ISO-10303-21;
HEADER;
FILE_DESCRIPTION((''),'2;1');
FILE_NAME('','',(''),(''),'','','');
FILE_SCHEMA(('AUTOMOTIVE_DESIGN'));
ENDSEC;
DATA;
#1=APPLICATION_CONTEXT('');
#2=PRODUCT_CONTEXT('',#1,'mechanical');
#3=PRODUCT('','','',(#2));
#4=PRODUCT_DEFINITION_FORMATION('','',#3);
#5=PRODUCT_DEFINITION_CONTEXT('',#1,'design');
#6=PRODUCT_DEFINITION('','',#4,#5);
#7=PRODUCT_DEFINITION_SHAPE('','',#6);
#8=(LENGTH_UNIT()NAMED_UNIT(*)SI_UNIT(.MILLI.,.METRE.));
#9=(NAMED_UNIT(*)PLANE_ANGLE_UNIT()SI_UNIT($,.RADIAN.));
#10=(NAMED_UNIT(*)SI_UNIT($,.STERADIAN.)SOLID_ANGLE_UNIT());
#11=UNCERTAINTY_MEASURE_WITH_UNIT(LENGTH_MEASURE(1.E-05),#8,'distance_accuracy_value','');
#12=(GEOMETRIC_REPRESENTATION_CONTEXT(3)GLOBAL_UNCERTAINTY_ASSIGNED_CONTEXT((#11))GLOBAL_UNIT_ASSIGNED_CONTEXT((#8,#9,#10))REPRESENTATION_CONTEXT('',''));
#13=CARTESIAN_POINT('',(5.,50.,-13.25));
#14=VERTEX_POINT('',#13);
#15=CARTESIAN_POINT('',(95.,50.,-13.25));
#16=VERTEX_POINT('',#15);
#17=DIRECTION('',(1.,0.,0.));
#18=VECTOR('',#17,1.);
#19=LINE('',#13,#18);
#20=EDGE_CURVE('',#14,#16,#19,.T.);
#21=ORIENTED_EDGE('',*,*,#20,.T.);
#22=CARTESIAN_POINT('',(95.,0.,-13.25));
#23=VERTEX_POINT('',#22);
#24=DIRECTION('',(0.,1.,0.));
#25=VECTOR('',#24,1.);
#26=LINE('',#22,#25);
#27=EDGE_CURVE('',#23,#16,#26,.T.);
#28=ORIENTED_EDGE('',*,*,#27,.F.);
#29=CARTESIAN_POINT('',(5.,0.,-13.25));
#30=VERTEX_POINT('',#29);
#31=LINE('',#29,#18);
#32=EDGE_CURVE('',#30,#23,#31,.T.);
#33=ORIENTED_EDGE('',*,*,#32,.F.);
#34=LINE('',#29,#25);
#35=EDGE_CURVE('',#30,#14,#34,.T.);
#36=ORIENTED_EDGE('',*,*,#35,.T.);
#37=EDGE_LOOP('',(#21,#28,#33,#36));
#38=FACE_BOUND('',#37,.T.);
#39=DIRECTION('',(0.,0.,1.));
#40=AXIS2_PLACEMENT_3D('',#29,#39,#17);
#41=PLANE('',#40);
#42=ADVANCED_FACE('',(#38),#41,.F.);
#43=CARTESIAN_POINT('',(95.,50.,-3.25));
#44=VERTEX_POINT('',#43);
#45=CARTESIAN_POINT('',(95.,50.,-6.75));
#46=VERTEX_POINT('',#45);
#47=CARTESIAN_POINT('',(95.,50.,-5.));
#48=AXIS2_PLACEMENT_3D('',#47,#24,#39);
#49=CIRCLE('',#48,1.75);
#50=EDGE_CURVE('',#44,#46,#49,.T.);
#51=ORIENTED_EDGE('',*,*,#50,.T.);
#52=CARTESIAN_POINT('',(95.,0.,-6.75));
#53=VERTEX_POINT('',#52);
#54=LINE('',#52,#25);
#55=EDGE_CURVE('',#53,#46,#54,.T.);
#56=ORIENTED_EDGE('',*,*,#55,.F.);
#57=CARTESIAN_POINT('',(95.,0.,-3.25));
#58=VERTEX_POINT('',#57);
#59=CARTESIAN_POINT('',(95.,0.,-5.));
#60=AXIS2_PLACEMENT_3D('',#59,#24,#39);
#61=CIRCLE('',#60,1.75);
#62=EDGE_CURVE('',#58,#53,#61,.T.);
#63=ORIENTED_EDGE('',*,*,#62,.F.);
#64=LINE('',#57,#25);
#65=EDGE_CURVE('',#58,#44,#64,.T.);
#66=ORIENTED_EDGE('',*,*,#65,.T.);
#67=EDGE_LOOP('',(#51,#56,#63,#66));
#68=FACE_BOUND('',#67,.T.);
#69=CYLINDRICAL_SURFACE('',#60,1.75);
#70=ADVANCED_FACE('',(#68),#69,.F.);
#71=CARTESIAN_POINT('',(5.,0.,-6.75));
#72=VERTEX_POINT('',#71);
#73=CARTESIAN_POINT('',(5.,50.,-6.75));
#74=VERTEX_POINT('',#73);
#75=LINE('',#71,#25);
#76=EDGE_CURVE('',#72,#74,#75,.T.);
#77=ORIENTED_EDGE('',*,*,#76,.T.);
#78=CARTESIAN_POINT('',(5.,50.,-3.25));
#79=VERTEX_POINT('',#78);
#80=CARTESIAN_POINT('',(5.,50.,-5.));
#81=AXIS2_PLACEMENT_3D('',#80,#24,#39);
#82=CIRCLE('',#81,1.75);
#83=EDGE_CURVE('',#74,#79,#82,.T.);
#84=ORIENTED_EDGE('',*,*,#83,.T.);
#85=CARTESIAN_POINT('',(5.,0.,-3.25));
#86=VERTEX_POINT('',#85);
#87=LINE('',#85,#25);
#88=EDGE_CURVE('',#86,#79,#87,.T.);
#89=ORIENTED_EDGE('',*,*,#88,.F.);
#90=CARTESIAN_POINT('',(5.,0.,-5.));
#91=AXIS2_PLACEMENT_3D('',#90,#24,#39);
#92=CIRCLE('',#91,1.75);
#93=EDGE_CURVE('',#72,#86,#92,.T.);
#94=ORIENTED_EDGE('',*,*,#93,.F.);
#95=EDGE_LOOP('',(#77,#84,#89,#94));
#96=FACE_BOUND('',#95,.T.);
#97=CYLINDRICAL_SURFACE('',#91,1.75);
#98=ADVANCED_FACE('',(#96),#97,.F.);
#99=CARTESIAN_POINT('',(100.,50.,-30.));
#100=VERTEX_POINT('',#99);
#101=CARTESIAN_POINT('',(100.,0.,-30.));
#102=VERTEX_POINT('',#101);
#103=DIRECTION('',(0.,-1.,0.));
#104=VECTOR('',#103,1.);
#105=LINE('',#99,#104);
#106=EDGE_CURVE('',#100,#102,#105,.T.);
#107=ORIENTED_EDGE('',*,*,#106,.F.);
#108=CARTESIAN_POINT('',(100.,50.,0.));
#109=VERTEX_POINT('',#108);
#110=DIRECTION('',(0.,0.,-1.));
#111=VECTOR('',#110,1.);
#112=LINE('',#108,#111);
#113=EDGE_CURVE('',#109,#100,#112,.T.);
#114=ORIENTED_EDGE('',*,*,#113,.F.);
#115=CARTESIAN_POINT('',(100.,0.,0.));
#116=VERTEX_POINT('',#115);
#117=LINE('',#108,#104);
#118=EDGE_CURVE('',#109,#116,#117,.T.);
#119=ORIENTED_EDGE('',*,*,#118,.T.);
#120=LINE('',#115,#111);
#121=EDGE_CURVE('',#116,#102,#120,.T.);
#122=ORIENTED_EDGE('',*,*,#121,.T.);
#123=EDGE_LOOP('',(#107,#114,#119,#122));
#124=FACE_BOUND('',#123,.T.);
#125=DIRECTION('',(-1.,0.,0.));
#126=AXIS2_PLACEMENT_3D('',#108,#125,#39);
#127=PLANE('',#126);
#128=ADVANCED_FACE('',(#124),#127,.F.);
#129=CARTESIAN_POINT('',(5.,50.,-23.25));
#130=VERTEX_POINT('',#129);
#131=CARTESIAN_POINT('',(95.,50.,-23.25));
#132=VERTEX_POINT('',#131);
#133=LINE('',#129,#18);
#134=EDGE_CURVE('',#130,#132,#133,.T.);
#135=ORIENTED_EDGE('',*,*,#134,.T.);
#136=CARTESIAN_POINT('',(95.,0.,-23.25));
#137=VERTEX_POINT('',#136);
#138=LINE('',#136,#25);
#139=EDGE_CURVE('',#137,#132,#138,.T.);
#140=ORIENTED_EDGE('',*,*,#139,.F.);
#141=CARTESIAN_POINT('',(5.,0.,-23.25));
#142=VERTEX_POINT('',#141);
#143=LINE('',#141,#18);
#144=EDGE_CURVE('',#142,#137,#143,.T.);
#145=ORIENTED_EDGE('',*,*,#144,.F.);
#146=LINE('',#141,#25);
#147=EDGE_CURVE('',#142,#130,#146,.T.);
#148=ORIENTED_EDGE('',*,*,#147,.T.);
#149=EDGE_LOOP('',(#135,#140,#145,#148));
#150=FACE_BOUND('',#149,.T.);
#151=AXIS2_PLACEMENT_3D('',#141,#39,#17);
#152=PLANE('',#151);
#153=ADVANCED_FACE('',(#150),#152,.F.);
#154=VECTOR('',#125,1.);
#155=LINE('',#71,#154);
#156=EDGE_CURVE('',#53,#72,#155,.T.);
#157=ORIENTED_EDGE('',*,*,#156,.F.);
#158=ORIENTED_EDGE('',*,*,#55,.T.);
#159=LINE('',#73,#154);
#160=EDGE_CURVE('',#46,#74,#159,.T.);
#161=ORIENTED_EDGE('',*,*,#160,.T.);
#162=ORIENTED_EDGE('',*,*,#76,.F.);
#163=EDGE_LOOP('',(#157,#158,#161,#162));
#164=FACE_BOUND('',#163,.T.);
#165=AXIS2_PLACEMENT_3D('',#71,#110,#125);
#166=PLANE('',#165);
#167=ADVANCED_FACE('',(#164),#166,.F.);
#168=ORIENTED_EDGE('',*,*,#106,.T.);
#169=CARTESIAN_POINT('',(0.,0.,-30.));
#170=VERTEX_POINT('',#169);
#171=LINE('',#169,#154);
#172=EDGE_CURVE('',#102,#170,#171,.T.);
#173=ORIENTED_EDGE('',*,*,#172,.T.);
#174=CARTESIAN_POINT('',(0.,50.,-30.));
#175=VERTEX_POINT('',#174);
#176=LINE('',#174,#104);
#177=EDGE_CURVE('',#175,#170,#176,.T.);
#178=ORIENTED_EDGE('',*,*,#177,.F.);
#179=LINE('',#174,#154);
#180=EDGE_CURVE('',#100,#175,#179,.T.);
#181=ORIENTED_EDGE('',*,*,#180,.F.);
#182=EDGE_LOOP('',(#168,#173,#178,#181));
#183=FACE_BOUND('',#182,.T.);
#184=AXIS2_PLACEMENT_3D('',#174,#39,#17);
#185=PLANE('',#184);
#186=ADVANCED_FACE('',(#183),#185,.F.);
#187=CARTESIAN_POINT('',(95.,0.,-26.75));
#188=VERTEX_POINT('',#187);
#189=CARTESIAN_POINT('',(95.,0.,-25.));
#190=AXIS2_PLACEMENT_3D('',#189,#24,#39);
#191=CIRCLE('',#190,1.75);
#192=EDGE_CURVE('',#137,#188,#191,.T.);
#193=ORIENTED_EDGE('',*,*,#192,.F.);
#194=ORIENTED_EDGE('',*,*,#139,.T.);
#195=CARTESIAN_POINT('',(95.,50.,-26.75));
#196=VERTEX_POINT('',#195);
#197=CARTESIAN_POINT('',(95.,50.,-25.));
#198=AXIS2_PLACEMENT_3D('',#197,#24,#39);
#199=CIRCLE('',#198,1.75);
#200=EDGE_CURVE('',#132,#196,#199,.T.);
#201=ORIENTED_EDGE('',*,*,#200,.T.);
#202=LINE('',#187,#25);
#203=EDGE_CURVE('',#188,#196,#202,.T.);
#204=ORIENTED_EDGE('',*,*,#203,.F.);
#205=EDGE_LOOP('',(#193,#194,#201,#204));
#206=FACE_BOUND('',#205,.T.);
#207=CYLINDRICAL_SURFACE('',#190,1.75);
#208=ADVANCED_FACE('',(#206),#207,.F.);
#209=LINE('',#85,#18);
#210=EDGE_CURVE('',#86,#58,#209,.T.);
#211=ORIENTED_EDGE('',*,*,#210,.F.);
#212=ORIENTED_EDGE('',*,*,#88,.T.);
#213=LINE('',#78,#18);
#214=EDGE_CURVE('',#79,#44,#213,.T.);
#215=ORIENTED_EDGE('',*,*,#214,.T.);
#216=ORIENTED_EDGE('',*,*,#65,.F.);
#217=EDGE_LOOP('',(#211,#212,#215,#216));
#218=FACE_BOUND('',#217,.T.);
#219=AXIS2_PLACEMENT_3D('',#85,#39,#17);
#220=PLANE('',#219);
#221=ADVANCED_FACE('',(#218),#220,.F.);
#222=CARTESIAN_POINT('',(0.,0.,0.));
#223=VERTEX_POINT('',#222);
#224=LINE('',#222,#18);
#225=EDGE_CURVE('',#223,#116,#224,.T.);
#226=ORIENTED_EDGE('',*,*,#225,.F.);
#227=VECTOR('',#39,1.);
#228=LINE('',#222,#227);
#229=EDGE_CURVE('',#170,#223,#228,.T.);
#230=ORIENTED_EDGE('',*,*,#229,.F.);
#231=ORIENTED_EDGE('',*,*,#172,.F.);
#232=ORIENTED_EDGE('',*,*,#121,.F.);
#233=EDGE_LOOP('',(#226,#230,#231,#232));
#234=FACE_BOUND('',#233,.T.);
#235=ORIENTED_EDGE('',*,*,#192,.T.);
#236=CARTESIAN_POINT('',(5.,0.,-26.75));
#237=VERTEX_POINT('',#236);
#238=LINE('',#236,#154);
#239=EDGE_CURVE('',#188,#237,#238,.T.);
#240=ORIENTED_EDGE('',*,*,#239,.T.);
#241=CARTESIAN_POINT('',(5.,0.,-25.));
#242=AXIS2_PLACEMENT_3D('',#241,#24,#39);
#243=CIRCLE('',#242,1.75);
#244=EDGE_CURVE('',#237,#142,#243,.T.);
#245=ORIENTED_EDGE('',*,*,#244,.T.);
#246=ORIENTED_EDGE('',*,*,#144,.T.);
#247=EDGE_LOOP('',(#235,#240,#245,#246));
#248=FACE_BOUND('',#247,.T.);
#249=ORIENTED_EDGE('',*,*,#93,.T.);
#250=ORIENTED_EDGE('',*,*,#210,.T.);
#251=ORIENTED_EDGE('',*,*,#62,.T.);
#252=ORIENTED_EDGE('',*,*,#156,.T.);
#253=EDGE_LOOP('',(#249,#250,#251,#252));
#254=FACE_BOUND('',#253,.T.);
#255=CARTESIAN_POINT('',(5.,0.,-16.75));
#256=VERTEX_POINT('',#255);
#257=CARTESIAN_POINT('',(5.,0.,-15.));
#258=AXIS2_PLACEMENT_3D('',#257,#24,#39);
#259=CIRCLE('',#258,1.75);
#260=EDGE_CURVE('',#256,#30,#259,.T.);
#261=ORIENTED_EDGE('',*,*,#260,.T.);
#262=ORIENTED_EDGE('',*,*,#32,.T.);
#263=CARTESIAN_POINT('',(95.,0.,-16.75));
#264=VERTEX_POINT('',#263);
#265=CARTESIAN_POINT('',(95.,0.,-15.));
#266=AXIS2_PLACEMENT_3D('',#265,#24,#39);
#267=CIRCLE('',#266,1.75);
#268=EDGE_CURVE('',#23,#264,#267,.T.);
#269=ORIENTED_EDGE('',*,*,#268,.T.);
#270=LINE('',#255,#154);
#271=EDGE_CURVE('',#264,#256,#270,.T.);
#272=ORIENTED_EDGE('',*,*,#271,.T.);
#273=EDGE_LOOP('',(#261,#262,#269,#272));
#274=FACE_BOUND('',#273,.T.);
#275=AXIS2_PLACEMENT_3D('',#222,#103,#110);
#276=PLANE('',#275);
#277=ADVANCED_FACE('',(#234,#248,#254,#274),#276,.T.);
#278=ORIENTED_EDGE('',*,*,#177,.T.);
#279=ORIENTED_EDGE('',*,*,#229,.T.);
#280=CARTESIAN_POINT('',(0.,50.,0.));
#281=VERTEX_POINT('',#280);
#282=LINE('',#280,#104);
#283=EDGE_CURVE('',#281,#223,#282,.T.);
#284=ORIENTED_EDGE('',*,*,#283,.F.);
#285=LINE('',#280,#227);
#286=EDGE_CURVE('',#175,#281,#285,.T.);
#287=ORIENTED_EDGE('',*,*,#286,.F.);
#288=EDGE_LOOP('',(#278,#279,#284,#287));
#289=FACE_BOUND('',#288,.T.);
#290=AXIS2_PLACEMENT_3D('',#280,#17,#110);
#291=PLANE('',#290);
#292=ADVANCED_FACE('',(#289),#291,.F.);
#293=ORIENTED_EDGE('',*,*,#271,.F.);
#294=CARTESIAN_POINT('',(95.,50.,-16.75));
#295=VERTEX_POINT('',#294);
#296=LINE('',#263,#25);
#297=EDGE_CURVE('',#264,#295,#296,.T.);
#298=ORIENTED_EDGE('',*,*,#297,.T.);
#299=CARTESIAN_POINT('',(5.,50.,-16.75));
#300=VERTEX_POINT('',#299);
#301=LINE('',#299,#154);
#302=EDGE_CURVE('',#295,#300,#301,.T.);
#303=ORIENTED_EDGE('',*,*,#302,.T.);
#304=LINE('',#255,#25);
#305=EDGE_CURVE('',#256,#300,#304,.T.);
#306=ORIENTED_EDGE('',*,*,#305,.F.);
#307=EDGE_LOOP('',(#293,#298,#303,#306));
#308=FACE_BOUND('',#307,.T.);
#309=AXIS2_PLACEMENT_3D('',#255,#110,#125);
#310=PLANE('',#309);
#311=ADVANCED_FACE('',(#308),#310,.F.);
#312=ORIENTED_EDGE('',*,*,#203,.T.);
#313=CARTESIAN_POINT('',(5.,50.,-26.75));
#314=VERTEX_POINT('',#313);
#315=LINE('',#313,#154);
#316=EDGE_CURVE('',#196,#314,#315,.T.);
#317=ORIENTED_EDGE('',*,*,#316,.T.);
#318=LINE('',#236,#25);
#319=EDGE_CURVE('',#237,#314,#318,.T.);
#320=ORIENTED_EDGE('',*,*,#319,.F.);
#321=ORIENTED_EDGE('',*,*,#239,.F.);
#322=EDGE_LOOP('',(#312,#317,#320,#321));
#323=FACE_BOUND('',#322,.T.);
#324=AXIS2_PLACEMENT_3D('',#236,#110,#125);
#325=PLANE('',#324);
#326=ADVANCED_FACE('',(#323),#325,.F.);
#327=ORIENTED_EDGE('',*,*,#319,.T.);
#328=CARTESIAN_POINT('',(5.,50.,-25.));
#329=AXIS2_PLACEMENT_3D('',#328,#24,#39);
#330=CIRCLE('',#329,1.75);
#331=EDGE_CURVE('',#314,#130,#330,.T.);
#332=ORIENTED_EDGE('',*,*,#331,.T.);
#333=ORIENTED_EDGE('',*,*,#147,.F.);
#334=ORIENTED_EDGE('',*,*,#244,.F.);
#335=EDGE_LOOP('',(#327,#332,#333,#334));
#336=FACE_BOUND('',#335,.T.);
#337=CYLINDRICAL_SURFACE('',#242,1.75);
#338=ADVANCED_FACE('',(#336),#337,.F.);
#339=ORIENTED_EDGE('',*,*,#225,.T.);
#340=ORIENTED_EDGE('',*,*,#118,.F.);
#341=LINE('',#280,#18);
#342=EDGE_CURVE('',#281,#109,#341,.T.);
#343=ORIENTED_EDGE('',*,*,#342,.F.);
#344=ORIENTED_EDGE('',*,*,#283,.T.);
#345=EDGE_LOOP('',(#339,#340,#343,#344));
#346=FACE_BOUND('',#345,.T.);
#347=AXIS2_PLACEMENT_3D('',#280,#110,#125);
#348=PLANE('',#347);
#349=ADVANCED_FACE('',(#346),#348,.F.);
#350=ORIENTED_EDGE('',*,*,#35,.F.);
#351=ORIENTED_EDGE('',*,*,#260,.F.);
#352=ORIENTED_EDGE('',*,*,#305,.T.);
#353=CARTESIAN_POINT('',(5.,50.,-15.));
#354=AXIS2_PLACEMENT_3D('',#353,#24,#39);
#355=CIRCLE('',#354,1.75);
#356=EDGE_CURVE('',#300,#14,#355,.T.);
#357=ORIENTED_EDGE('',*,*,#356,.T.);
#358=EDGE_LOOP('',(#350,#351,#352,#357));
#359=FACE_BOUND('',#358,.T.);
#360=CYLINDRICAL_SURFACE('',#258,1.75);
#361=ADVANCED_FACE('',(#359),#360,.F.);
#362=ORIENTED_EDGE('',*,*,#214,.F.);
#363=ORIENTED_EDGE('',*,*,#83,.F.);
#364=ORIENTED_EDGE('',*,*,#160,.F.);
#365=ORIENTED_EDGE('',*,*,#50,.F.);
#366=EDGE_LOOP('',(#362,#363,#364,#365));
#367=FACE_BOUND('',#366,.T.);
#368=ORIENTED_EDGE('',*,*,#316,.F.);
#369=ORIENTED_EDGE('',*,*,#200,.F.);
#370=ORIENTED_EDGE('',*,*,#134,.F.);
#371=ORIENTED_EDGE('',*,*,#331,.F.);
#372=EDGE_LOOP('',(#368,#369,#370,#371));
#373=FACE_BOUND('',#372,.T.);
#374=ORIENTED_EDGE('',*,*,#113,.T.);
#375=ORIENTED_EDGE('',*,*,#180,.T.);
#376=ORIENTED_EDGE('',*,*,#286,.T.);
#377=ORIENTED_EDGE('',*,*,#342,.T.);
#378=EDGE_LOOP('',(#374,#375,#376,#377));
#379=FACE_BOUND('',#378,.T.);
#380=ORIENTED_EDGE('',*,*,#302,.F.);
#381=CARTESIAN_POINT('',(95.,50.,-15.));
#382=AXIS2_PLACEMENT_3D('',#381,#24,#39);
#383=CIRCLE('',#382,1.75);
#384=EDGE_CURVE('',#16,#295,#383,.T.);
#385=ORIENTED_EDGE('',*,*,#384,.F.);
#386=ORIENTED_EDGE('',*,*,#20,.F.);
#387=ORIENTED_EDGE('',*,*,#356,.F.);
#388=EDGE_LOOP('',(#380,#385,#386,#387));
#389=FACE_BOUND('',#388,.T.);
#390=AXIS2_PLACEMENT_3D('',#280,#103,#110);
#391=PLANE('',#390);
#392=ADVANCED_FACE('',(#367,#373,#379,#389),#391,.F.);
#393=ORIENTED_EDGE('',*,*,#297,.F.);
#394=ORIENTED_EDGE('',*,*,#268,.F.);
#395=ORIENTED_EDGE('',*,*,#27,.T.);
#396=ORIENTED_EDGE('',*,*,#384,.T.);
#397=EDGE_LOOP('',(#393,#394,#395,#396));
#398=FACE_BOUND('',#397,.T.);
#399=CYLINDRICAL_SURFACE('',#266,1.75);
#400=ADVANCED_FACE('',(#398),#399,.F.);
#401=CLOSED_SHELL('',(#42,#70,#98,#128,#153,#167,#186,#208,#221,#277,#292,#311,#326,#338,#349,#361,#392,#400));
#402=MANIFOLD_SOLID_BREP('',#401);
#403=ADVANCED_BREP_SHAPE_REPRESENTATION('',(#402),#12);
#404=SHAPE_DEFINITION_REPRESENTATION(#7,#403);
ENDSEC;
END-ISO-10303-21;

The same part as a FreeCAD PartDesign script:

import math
import FreeCAD as App
import Part
import Sketcher

V = App.Vector
Q = App.Units.Quantity

doc = App.newDocument("Part")
body = doc.addObject("PartDesign::Body", "Body")

# Sketch on XZ plane
sketch1 = body.newObject("Sketcher::SketchObject", "Sketch")
sketch1.AttachmentSupport = (doc.getObject("XZ_Plane"), [""])
sketch1.MapMode = "FlatFace"
sketch1.addGeometry(Part.LineSegment(V(0, -30, 0), V(0, 0, 0)), False)
sketch1.addGeometry(Part.LineSegment(V(0, 0, 0), V(100, 0, 0)), False)
sketch1.addGeometry(Part.LineSegment(V(100, 0, 0), V(100, -30, 0)), False)
sketch1.addGeometry(Part.LineSegment(V(100, -30, 0), V(0, -30, 0)), False)
sketch1.addConstraint(Sketcher.Constraint("Coincident", 0, 2, 1, 1))
sketch1.addConstraint(Sketcher.Constraint("Coincident", 1, 2, 2, 1))
sketch1.addConstraint(Sketcher.Constraint("Coincident", 2, 2, 3, 1))
sketch1.addConstraint(Sketcher.Constraint("Coincident", 3, 2, 0, 1))
sketch1.addConstraint(Sketcher.Constraint("Vertical", 0))
sketch1.addConstraint(Sketcher.Constraint("Horizontal", 1))
sketch1.addConstraint(Sketcher.Constraint("Vertical", 2))
sketch1.addConstraint(Sketcher.Constraint("Horizontal", 3))
sketch1.addConstraint(Sketcher.Constraint("Coincident", 0, 2, -1, 1))
sketch1.addConstraint(Sketcher.Constraint("DistanceX", 1, 1, 1, 2, Q("100 mm")))
sketch1.addConstraint(Sketcher.Constraint("DistanceY", 0, 1, 0, 2, Q("30 mm")))
pad1 = body.newObject("PartDesign::Pad", "Pad")
pad1.Profile = sketch1
pad1.Length = 50
pad1.Reversed = True

# Sketch on XZ plane
sketch2 = body.newObject("Sketcher::SketchObject", "Sketch001")
sketch2.AttachmentSupport = (doc.getObject("XZ_Plane"), [""])
sketch2.MapMode = "FlatFace"
sketch2.AttachmentOffset = App.Placement(V(0, 0, -50), App.Rotation())
sketch2.addGeometry(Part.LineSegment(V(95, -6.8, 0), V(5, -6.8, 0)), False)
sketch2.addGeometry(Part.ArcOfCircle(Part.Circle(V(5, -5, 0), V(0, 0, 1), 1.8), math.radians(90), math.radians(270)), False)
sketch2.addGeometry(Part.LineSegment(V(5, -3.2, 0), V(95, -3.2, 0)), False)
sketch2.addGeometry(Part.ArcOfCircle(Part.Circle(V(95, -5, 0), V(0, 0, 1), 1.8), math.radians(-90), math.radians(90)), False)
sketch2.addConstraint(Sketcher.Constraint("Tangent", 0, 2, 1, 2))
sketch2.addConstraint(Sketcher.Constraint("Tangent", 1, 1, 2, 1))
sketch2.addConstraint(Sketcher.Constraint("Tangent", 2, 2, 3, 2))
sketch2.addConstraint(Sketcher.Constraint("Tangent", 3, 1, 0, 1))
sketch2.addConstraint(Sketcher.Constraint("Horizontal", 0))
sketch2.addConstraint(Sketcher.Constraint("Horizontal", 2))
sketch2.addConstraint(Sketcher.Constraint("DistanceX", 0, 2, 0, 1, Q("90 mm")))
sketch2.addConstraint(Sketcher.Constraint("Radius", 1, Q("1.75 mm")))
sketch2.addConstraint(Sketcher.Constraint("DistanceX", -1, 1, 1, 3, Q("5 mm")))
sketch2.addConstraint(Sketcher.Constraint("DistanceY", 1, 3, -1, 1, Q("5 mm")))
pocket1 = body.newObject("PartDesign::Pocket", "Pocket")
pocket1.Profile = sketch2
pocket1.Length = 50
pocket1.Reversed = True
doc.recompute()

linearpattern = body.newObject("PartDesign::LinearPattern", "LinearPattern")
linearpattern.Originals = [pocket1]
linearpattern.Direction = (doc.getObject("Z_Axis"), [""])
linearpattern.Mode = "offset"
linearpattern.Offset = 10
linearpattern.Occurrences = 3
linearpattern.Reversed = True
body.Tip = linearpattern

doc.recompute()
